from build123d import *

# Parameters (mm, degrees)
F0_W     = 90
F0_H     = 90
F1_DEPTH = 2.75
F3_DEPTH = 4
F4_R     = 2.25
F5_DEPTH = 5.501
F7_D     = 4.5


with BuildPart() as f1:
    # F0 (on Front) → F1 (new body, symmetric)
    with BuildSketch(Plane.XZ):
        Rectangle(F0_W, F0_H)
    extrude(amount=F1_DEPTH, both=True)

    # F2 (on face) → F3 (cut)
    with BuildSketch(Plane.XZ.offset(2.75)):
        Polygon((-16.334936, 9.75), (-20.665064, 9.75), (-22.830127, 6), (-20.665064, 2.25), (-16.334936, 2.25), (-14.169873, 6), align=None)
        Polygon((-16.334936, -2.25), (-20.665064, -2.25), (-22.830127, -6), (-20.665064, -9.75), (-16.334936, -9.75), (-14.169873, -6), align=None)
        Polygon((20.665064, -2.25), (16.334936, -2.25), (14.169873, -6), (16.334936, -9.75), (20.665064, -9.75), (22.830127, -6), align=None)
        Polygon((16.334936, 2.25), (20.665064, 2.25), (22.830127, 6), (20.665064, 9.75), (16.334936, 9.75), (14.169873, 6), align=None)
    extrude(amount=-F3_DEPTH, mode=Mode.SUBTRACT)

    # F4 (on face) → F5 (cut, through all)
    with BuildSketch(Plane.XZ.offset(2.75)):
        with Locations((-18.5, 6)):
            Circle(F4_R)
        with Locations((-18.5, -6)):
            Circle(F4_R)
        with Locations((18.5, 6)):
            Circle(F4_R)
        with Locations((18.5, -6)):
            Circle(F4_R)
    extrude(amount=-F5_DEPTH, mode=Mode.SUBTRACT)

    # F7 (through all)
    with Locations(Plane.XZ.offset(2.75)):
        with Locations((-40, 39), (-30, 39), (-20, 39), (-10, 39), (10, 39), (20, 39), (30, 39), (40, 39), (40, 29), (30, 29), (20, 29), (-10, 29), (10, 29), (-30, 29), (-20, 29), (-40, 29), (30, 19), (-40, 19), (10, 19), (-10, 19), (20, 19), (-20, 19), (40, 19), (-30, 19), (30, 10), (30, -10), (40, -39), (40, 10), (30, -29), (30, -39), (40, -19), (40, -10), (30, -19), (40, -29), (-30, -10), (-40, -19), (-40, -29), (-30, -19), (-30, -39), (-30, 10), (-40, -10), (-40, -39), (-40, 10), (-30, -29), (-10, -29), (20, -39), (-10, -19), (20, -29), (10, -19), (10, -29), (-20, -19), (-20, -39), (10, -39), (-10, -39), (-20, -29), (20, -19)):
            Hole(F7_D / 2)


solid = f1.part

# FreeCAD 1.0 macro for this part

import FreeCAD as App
import Part
import Sketcher
from FreeCAD import Vector
Q = App.Units.Quantity


def add_polygon(sketch, points):
    """Adds a closed chain of lines whose ends are joined by coincident constraints."""
    first, n = sketch.GeometryCount, len(points)
    for a, b in zip(points, points[1:] + points[:1]):
        sketch.addGeometry(Part.LineSegment(App.Vector(*a, 0), App.Vector(*b, 0)), False)
    for i in range(n):
        sketch.addConstraint(Sketcher.Constraint("Coincident", first + i, 2, first + (i + 1) % n, 1))

doc = App.newDocument("Part")
params = doc.addObject("Spreadsheet::Sheet", "Params")
for row, (alias, value) in enumerate([
    ("sketch1_width", "90 mm"),
    ("pad1_length", "5.5 mm"),
    ("pocket1_length", "4 mm"),
    ("sketch3_diameter", "4.5 mm"),
    ("sketch4_diameter", "4.5 mm"),
    ("hole_diameter", "4.5 mm"),
], start=1):
    params.set(f"A{row}", alias)
    params.set(f"B{row}", "=" + value)
    params.setAlias(f"B{row}", alias)

body = doc.addObject("PartDesign::Body", "Body")

sketch1 = doc.addObject("Sketcher::SketchObject", "Sketch")
body.addObject(sketch1)
sketch1.AttachmentSupport = (doc.XZ_Plane, [""])
sketch1.MapMode = "FlatFace"
add_polygon(sketch1, [(-45, 45), (-45, -45), (45, -45), (45, 45)])
sketch1.addConstraint(Sketcher.Constraint("Vertical", 0))
sketch1.addConstraint(Sketcher.Constraint("Horizontal", 1))
sketch1.addConstraint(Sketcher.Constraint("Vertical", 2))
sketch1.addConstraint(Sketcher.Constraint("Horizontal", 3))
sketch1.addConstraint(Sketcher.Constraint("Symmetric", 0, 2, 2, 2, -1, 1))
sketch1.addConstraint(Sketcher.Constraint("Equal", 3, 0))
sketch1.addConstraint(Sketcher.Constraint("DistanceX", 1, 1, 1, 2, Q("90 mm")))
sketch1.setExpression("Constraints[10]", "Params.sketch1_width")
pad1 = doc.addObject("PartDesign::Pad", "Pad")
body.addObject(pad1)
pad1.Profile = sketch1
pad1.setExpression("Length", "Params.pad1_length")
pad1.Midplane = True

sketch2 = doc.addObject("Sketcher::SketchObject", "Sketch001")
body.addObject(sketch2)
sketch2.AttachmentSupport = (doc.XZ_Plane, [""])
sketch2.MapMode = "FlatFace"
sketch2.AttachmentOffset = App.Placement(Vector(0, 0, 2.75), App.Rotation())
add_polygon(sketch2, [(-16.3, 9.8), (-20.7, 9.8), (-22.8, 6), (-20.7, 2.2), (-16.3, 2.2), (-14.2, 6)])
add_polygon(sketch2, [(-16.3, -2.2), (-20.7, -2.2), (-22.8, -6), (-20.7, -9.8), (-16.3, -9.8), (-14.2, -6)])
add_polygon(sketch2, [(20.7, -2.2), (16.3, -2.2), (14.2, -6), (16.3, -9.8), (20.7, -9.8), (22.8, -6)])
add_polygon(sketch2, [(16.3, 2.2), (20.7, 2.2), (22.8, 6), (20.7, 9.8), (16.3, 9.8), (14.2, 6)])
sketch2.addConstraint(Sketcher.Constraint("Horizontal", 0))
sketch2.addConstraint(Sketcher.Constraint("Horizontal", 3))
sketch2.addConstraint(Sketcher.Constraint("Horizontal", 6))
sketch2.addConstraint(Sketcher.Constraint("Horizontal", 9))
sketch2.addConstraint(Sketcher.Constraint("Horizontal", 12))
sketch2.addConstraint(Sketcher.Constraint("Horizontal", 15))
sketch2.addConstraint(Sketcher.Constraint("Horizontal", 18))
sketch2.addConstraint(Sketcher.Constraint("Horizontal", 21))
sketch2.addConstraint(Sketcher.Constraint("Symmetric", 3, 2, 12, 2, -1, 1))
sketch2.addConstraint(Sketcher.Constraint("Symmetric", 4, 2, 13, 2, -1, 1))
sketch2.addConstraint(Sketcher.Constraint("Symmetric", 5, 2, 14, 2, -1, 1))
sketch2.addConstraint(Sketcher.Constraint("Symmetric", 1, 2, 16, 2, -1, 1))
sketch2.addConstraint(Sketcher.Constraint("Symmetric", 6, 2, 18, 2, -1, 1))
sketch2.addConstraint(Sketcher.Constraint("Symmetric", 7, 2, 19, 2, -1, 1))
sketch2.addConstraint(Sketcher.Constraint("Symmetric", 8, 2, 20, 2, -1, 1))
sketch2.addConstraint(Sketcher.Constraint("Symmetric", 10, 2, 22, 2, -1, 1))
sketch2.addConstraint(Sketcher.Constraint("Symmetric", 11, 2, 12, 2, -2))
sketch2.addConstraint(Sketcher.Constraint("Symmetric", 10, 2, 13, 2, -2))
sketch2.addConstraint(Sketcher.Constraint("Symmetric", 9, 2, 14, 2, -2))
sketch2.addConstraint(Sketcher.Constraint("Symmetric", 7, 2, 16, 2, -2))
sketch2.addConstraint(Sketcher.Constraint("Parallel", 1, 4))
sketch2.addConstraint(Sketcher.Constraint("Parallel", 2, 5))
sketch2.addConstraint(Sketcher.Constraint("Parallel", 4, 7))
sketch2.addConstraint(Sketcher.Constraint("Parallel", 5, 8))
sketch2.addConstraint(Sketcher.Constraint("Parallel", 7, 10))
sketch2.addConstraint(Sketcher.Constraint("Parallel", 13, 16))
sketch2.addConstraint(Sketcher.Constraint("Parallel", 14, 17))
sketch2.addConstraint(Sketcher.Constraint("Parallel", 19, 22))
sketch2.addConstraint(Sketcher.Constraint("Parallel", 20, 23))
sketch2.addConstraint(Sketcher.Constraint("Horizontal", 1, 2, 4, 2))
sketch2.addConstraint(Sketcher.Constraint("Vertical", 0, 2, 2, 2))
sketch2.addConstraint(Sketcher.Constraint("Angle", 1, Q("-119.999994 deg")))
sketch2.addConstraint(Sketcher.Constraint("DistanceY", -1, 1, 1, 2, Q("6 mm")))
sketch2.addConstraint(Sketcher.Constraint("DistanceX", 9, 2, 15, 2, Q("37 mm")))
sketch2.addConstraint(Sketcher.Constraint("DistanceY", 2, 2, 0, 2, Q("7.5 mm")))
sketch2.addConstraint(Sketcher.Constraint("DistanceX", 0, 2, 0, 1, Q("4.330128 mm")))
pocket1 = doc.addObject("PartDesign::Pocket", "Pocket")
body.addObject(pocket1)
pocket1.Profile = sketch2
pocket1.setExpression("Length", "Params.pocket1_length")

sketch3 = doc.addObject("Sketcher::SketchObject", "Sketch002")
body.addObject(sketch3)
sketch3.AttachmentSupport = (doc.XZ_Plane, [""])
sketch3.MapMode = "FlatFace"
sketch3.AttachmentOffset = App.Placement(Vector(0, 0, 2.75), App.Rotation())
sketch3.addGeometry(Part.Circle(Vector(-18.5, 6, 0), Vector(0, 0, 1), 2.2), False)
sketch3.addGeometry(Part.Circle(Vector(-18.5, -6, 0), Vector(0, 0, 1), 2.2), False)
sketch3.addGeometry(Part.Circle(Vector(18.5, 6, 0), Vector(0, 0, 1), 2.2), False)
sketch3.addGeometry(Part.Circle(Vector(18.5, -6, 0), Vector(0, 0, 1), 2.2), False)
sketch3.addConstraint(Sketcher.Constraint("Equal", 0, 1))
sketch3.addConstraint(Sketcher.Constraint("Equal", 1, 2))
sketch3.addConstraint(Sketcher.Constraint("Equal", 2, 3))
sketch3.addConstraint(Sketcher.Constraint("Symmetric", 1, 3, 2, 3, -1, 1))
sketch3.addConstraint(Sketcher.Constraint("Symmetric", 0, 3, 3, 3, -1, 1))
sketch3.addConstraint(Sketcher.Constraint("Symmetric", 0, 3, 2, 3, -2))
sketch3.addConstraint(Sketcher.Constraint("Diameter", 0, Q("4.5 mm")))
sketch3.addConstraint(Sketcher.Constraint("DistanceY", -1, 1, 0, 3, Q("6 mm")))
sketch3.addConstraint(Sketcher.Constraint("DistanceX", 0, 3, 2, 3, Q("37 mm")))
sketch3.setExpression("Constraints[6]", "Params.sketch3_diameter")
pocket2 = doc.addObject("PartDesign::Pocket", "Pocket001")
body.addObject(pocket2)
pocket2.Profile = sketch3
pocket2.Type = "ThroughAll"

sketch4 = doc.addObject("Sketcher::SketchObject", "Sketch003")
body.addObject(sketch4)
sketch4.AttachmentSupport = (doc.XZ_Plane, [""])
sketch4.MapMode = "FlatFace"
sketch4.AttachmentOffset = App.Placement(Vector(0, 0, 2.75), App.Rotation())
sketch4.addGeometry(Part.Circle(Vector(-40, 39, 0), Vector(0, 0, 1), 2.2), False)
sketch4.addGeometry(Part.Circle(Vector(-30, 39, 0), Vector(0, 0, 1), 2.2), False)
sketch4.addGeometry(Part.Circle(Vector(-20, 39, 0), Vector(0, 0, 1), 2.2), False)
sketch4.addGeometry(Part.Circle(Vector(-10, 39, 0), Vector(0, 0, 1), 2.2), False)
sketch4.addGeometry(Part.Circle(Vector(10, 39, 0), Vector(0, 0, 1), 2.2), False)
sketch4.addGeometry(Part.Circle(Vector(20, 39, 0), Vector(0, 0, 1), 2.2), False)
sketch4.addGeometry(Part.Circle(Vector(30, 39, 0), Vector(0, 0, 1), 2.2), False)
sketch4.addGeometry(Part.Circle(Vector(40, 39, 0), Vector(0, 0, 1), 2.2), False)
sketch4.addGeometry(Part.Circle(Vector(40, 29, 0), Vector(0, 0, 1), 2.2), False)
sketch4.addGeometry(Part.Circle(Vector(30, 29, 0), Vector(0, 0, 1), 2.2), False)
sketch4.addGeometry(Part.Circle(Vector(20, 29, 0), Vector(0, 0, 1), 2.2), False)
sketch4.addGeometry(Part.Circle(Vector(-10, 29, 0), Vector(0, 0, 1), 2.2), False)
sketch4.addGeometry(Part.Circle(Vector(10, 29, 0), Vector(0, 0, 1), 2.2), False)
sketch4.addGeometry(Part.Circle(Vector(-30, 29, 0), Vector(0, 0, 1), 2.2), False)
sketch4.addGeometry(Part.Circle(Vector(-20, 29, 0), Vector(0, 0, 1), 2.2), False)
sketch4.addGeometry(Part.Circle(Vector(-40, 29, 0), Vector(0, 0, 1), 2.2), False)
sketch4.addGeometry(Part.Circle(Vector(30, 19, 0), Vector(0, 0, 1), 2.2), False)
sketch4.addGeometry(Part.Circle(Vector(-40, 19, 0), Vector(0, 0, 1), 2.2), False)
sketch4.addGeometry(Part.Circle(Vector(10, 19, 0), Vector(0, 0, 1), 2.2), False)
sketch4.addGeometry(Part.Circle(Vector(-10, 19, 0), Vector(0, 0, 1), 2.2), False)
sketch4.addGeometry(Part.Circle(Vector(20, 19, 0), Vector(0, 0, 1), 2.2), False)
sketch4.addGeometry(Part.Circle(Vector(-20, 19, 0), Vector(0, 0, 1), 2.2), False)
sketch4.addGeometry(Part.Circle(Vector(40, 19, 0), Vector(0, 0, 1), 2.2), False)
sketch4.addGeometry(Part.Circle(Vector(-30, 19, 0), Vector(0, 0, 1), 2.2), False)
sketch4.addGeometry(Part.Circle(Vector(30, 10, 0), Vector(0, 0, 1), 2.2), False)
sketch4.addGeometry(Part.Circle(Vector(30, -10, 0), Vector(0, 0, 1), 2.2), False)
sketch4.addGeometry(Part.Circle(Vector(40, -39, 0), Vector(0, 0, 1), 2.2), False)
sketch4.addGeometry(Part.Circle(Vector(40, 10, 0), Vector(0, 0, 1), 2.2), False)
sketch4.addGeometry(Part.Circle(Vector(30, -29, 0), Vector(0, 0, 1), 2.2), False)
sketch4.addGeometry(Part.Circle(Vector(30, -39, 0), Vector(0, 0, 1), 2.2), False)
sketch4.addGeometry(Part.Circle(Vector(40, -19, 0), Vector(0, 0, 1), 2.2), False)
sketch4.addGeometry(Part.Circle(Vector(40, -10, 0), Vector(0, 0, 1), 2.2), False)
sketch4.addGeometry(Part.Circle(Vector(30, -19, 0), Vector(0, 0, 1), 2.2), False)
sketch4.addGeometry(Part.Circle(Vector(40, -29, 0), Vector(0, 0, 1), 2.2), False)
sketch4.addGeometry(Part.Circle(Vector(-30, -10, 0), Vector(0, 0, 1), 2.2), False)
sketch4.addGeometry(Part.Circle(Vector(-40, -19, 0), Vector(0, 0, 1), 2.2), False)
sketch4.addGeometry(Part.Circle(Vector(-40, -29, 0), Vector(0, 0, 1), 2.2), False)
sketch4.addGeometry(Part.Circle(Vector(-30, -19, 0), Vector(0, 0, 1), 2.2), False)
sketch4.addGeometry(Part.Circle(Vector(-30, -39, 0), Vector(0, 0, 1), 2.2), False)
sketch4.addGeometry(Part.Circle(Vector(-30, 10, 0), Vector(0, 0, 1), 2.2), False)
sketch4.addGeometry(Part.Circle(Vector(-40, -10, 0), Vector(0, 0, 1), 2.2), False)
sketch4.addGeometry(Part.Circle(Vector(-40, -39, 0), Vector(0, 0, 1), 2.2), False)
sketch4.addGeometry(Part.Circle(Vector(-40, 10, 0), Vector(0, 0, 1), 2.2), False)
sketch4.addGeometry(Part.Circle(Vector(-30, -29, 0), Vector(0, 0, 1), 2.2), False)
sketch4.addGeometry(Part.Circle(Vector(-10, -29, 0), Vector(0, 0, 1), 2.2), False)
sketch4.addGeometry(Part.Circle(Vector(20, -39, 0), Vector(0, 0, 1), 2.2), False)
sketch4.addGeometry(Part.Circle(Vector(-10, -19, 0), Vector(0, 0, 1), 2.2), False)
sketch4.addGeometry(Part.Circle(Vector(20, -29, 0), Vector(0, 0, 1), 2.2), False)
sketch4.addGeometry(Part.Circle(Vector(10, -19, 0), Vector(0, 0, 1), 2.2), False)
sketch4.addGeometry(Part.Circle(Vector(10, -29, 0), Vector(0, 0, 1), 2.2), False)
sketch4.addGeometry(Part.Circle(Vector(-20, -19, 0), Vector(0, 0, 1), 2.2), False)
sketch4.addGeometry(Part.Circle(Vector(-20, -39, 0), Vector(0, 0, 1), 2.2), False)
sketch4.addGeometry(Part.Circle(Vector(10, -39, 0), Vector(0, 0, 1), 2.2), False)
sketch4.addGeometry(Part.Circle(Vector(-10, -39, 0), Vector(0, 0, 1), 2.2), False)
sketch4.addGeometry(Part.Circle(Vector(-20, -29, 0), Vector(0, 0, 1), 2.2), False)
sketch4.addGeometry(Part.Circle(Vector(20, -19, 0), Vector(0, 0, 1), 2.2), False)
sketch4.addConstraint(Sketcher.Constraint("Equal", 0, 1))
sketch4.addConstraint(Sketcher.Constraint("Equal", 1, 2))
sketch4.addConstraint(Sketcher.Constraint("Equal", 2, 3))
sketch4.addConstraint(Sketcher.Constraint("Equal", 3, 4))
sketch4.addConstraint(Sketcher.Constraint("Equal", 4, 5))
sketch4.addConstraint(Sketcher.Constraint("Equal", 5, 6))
sketch4.addConstraint(Sketcher.Constraint("Equal", 6, 7))
sketch4.addConstraint(Sketcher.Constraint("Equal", 7, 8))
sketch4.addConstraint(Sketcher.Constraint("Equal", 8, 9))
sketch4.addConstraint(Sketcher.Constraint("Equal", 9, 10))
sketch4.addConstraint(Sketcher.Constraint("Equal", 10, 11))
sketch4.addConstraint(Sketcher.Constraint("Equal", 11, 12))
sketch4.addConstraint(Sketcher.Constraint("Equal", 12, 13))
sketch4.addConstraint(Sketcher.Constraint("Equal", 13, 14))
sketch4.addConstraint(Sketcher.Constraint("Equal", 14, 15))
sketch4.addConstraint(Sketcher.Constraint("Equal", 15, 16))
sketch4.addConstraint(Sketcher.Constraint("Equal", 16, 17))
sketch4.addConstraint(Sketcher.Constraint("Equal", 17, 18))
sketch4.addConstraint(Sketcher.Constraint("Equal", 18, 19))
sketch4.addConstraint(Sketcher.Constraint("Equal", 19, 20))
sketch4.addConstraint(Sketcher.Constraint("Equal", 20, 21))
sketch4.addConstraint(Sketcher.Constraint("Equal", 21, 22))
sketch4.addConstraint(Sketcher.Constraint("Equal", 22, 23))
sketch4.addConstraint(Sketcher.Constraint("Equal", 23, 24))
sketch4.addConstraint(Sketcher.Constraint("Equal", 24, 25))
sketch4.addConstraint(Sketcher.Constraint("Equal", 25, 26))
sketch4.addConstraint(Sketcher.Constraint("Equal", 26, 27))
sketch4.addConstraint(Sketcher.Constraint("Equal", 27, 28))
sketch4.addConstraint(Sketcher.Constraint("Equal", 28, 29))
sketch4.addConstraint(Sketcher.Constraint("Equal", 29, 30))
sketch4.addConstraint(Sketcher.Constraint("Equal", 30, 31))
sketch4.addConstraint(Sketcher.Constraint("Equal", 31, 32))
sketch4.addConstraint(Sketcher.Constraint("Equal", 32, 33))
sketch4.addConstraint(Sketcher.Constraint("Equal", 33, 34))
sketch4.addConstraint(Sketcher.Constraint("Equal", 34, 35))
sketch4.addConstraint(Sketcher.Constraint("Equal", 35, 36))
sketch4.addConstraint(Sketcher.Constraint("Equal", 36, 37))
sketch4.addConstraint(Sketcher.Constraint("Equal", 37, 38))
sketch4.addConstraint(Sketcher.Constraint("Equal", 38, 39))
sketch4.addConstraint(Sketcher.Constraint("Equal", 39, 40))
sketch4.addConstraint(Sketcher.Constraint("Equal", 40, 41))
sketch4.addConstraint(Sketcher.Constraint("Equal", 41, 42))
sketch4.addConstraint(Sketcher.Constraint("Equal", 42, 43))
sketch4.addConstraint(Sketcher.Constraint("Equal", 43, 44))
sketch4.addConstraint(Sketcher.Constraint("Equal", 44, 45))
sketch4.addConstraint(Sketcher.Constraint("Equal", 45, 46))
sketch4.addConstraint(Sketcher.Constraint("Equal", 46, 47))
sketch4.addConstraint(Sketcher.Constraint("Equal", 47, 48))
sketch4.addConstraint(Sketcher.Constraint("Equal", 48, 49))
sketch4.addConstraint(Sketcher.Constraint("Equal", 49, 50))
sketch4.addConstraint(Sketcher.Constraint("Equal", 50, 51))
sketch4.addConstraint(Sketcher.Constraint("Equal", 51, 52))
sketch4.addConstraint(Sketcher.Constraint("Equal", 52, 53))
sketch4.addConstraint(Sketcher.Constraint("Equal", 53, 54))
sketch4.addConstraint(Sketcher.Constraint("Equal", 54, 55))
sketch4.addConstraint(Sketcher.Constraint("Symmetric", 0, 3, 26, 3, -1, 1))
sketch4.addConstraint(Sketcher.Constraint("Symmetric", 13, 3, 28, 3, -1, 1))
sketch4.addConstraint(Sketcher.Constraint("Symmetric", 1, 3, 29, 3, -1, 1))
sketch4.addConstraint(Sketcher.Constraint("Symmetric", 17, 3, 30, 3, -1, 1))
sketch4.addConstraint(Sketcher.Constraint("Symmetric", 23, 3, 32, 3, -1, 1))
sketch4.addConstraint(Sketcher.Constraint("Symmetric", 15, 3, 33, 3, -1, 1))
sketch4.addConstraint(Sketcher.Constraint("Symmetric", 24, 3, 34, 3, -1, 1))
sketch4.addConstraint(Sketcher.Constraint("Symmetric", 22, 3, 35, 3, -1, 1))
sketch4.addConstraint(Sketcher.Constraint("Symmetric", 8, 3, 36, 3, -1, 1))
sketch4.addConstraint(Sketcher.Constraint("Symmetric", 16, 3, 37, 3, -1, 1))
sketch4.addConstraint(Sketcher.Constraint("Symmetric", 6, 3, 38, 3, -1, 1))
sketch4.addConstraint(Sketcher.Constraint("Symmetric", 25, 3, 39, 3, -1, 1))
sketch4.addConstraint(Sketcher.Constraint("Symmetric", 27, 3, 40, 3, -1, 1))
sketch4.addConstraint(Sketcher.Constraint("Symmetric", 7, 3, 41, 3, -1, 1))
sketch4.addConstraint(Sketcher.Constraint("Symmetric", 31, 3, 42, 3, -1, 1))
sketch4.addConstraint(Sketcher.Constraint("Symmetric", 9, 3, 43, 3, -1, 1))
sketch4.addConstraint(Sketcher.Constraint("Symmetric", 12, 3, 44, 3, -1, 1))
sketch4.addConstraint(Sketcher.Constraint("Symmetric", 2, 3, 45, 3, -1, 1))
sketch4.addConstraint(Sketcher.Constraint("Symmetric", 18, 3, 46, 3, -1, 1))
sketch4.addConstraint(Sketcher.Constraint("Symmetric", 14, 3, 47, 3, -1, 1))
sketch4.addConstraint(Sketcher.Constraint("Symmetric", 19, 3, 48, 3, -1, 1))
sketch4.addConstraint(Sketcher.Constraint("Symmetric", 11, 3, 49, 3, -1, 1))
sketch4.addConstraint(Sketcher.Constraint("Symmetric", 20, 3, 50, 3, -1, 1))
sketch4.addConstraint(Sketcher.Constraint("Symmetric", 5, 3, 51, 3, -1, 1))
sketch4.addConstraint(Sketcher.Constraint("Symmetric", 3, 3, 52, 3, -1, 1))
sketch4.addConstraint(Sketcher.Constraint("Symmetric", 4, 3, 53, 3, -1, 1))
sketch4.addConstraint(Sketcher.Constraint("Symmetric", 10, 3, 54, 3, -1, 1))
sketch4.addConstraint(Sketcher.Constraint("Symmetric", 21, 3, 55, 3, -1, 1))
sketch4.addConstraint(Sketcher.Constraint("Symmetric", 3, 3, 4, 3, -2))
sketch4.addConstraint(Sketcher.Constraint("Symmetric", 2, 3, 5, 3, -2))
sketch4.addConstraint(Sketcher.Constraint("Symmetric", 1, 3, 6, 3, -2))
sketch4.addConstraint(Sketcher.Constraint("Symmetric", 0, 3, 7, 3, -2))
sketch4.addConstraint(Sketcher.Constraint("Symmetric", 11, 3, 12, 3, -2))
sketch4.addConstraint(Sketcher.Constraint("Symmetric", 9, 3, 13, 3, -2))
sketch4.addConstraint(Sketcher.Constraint("Symmetric", 10, 3, 14, 3, -2))
sketch4.addConstraint(Sketcher.Constraint("Symmetric", 8, 3, 15, 3, -2))
sketch4.addConstraint(Sketcher.Constraint("Symmetric", 18, 3, 19, 3, -2))
sketch4.addConstraint(Sketcher.Constraint("Symmetric", 20, 3, 21, 3, -2))
sketch4.addConstraint(Sketcher.Constraint("Symmetric", 17, 3, 22, 3, -2))
sketch4.addConstraint(Sketcher.Constraint("Symmetric", 16, 3, 23, 3, -2))
sketch4.addConstraint(Sketcher.Constraint("Symmetric", 25, 3, 34, 3, -2))
sketch4.addConstraint(Sketcher.Constraint("Symmetric", 31, 3, 40, 3, -2))
sketch4.addConstraint(Sketcher.Constraint("Horizontal", 0, 3, 1, 3))
sketch4.addConstraint(Sketcher.Constraint("Horizontal", 1, 3, 2, 3))
sketch4.addConstraint(Sketcher.Constraint("Horizontal", 2, 3, 3, 3))
sketch4.addConstraint(Sketcher.Constraint("Horizontal", 8, 3, 9, 3))
sketch4.addConstraint(Sketcher.Constraint("Horizontal", 9, 3, 10, 3))
sketch4.addConstraint(Sketcher.Constraint("Horizontal", 10, 3, 11, 3))
sketch4.addConstraint(Sketcher.Constraint("Horizontal", 16, 3, 17, 3))
sketch4.addConstraint(Sketcher.Constraint("Horizontal", 17, 3, 18, 3))
sketch4.addConstraint(Sketcher.Constraint("Horizontal", 19, 3, 20, 3))
sketch4.addConstraint(Sketcher.Constraint("Horizontal", 24, 3, 27, 3))
sketch4.addConstraint(Sketcher.Constraint("Vertical", 7, 3, 8, 3))
sketch4.addConstraint(Sketcher.Constraint("Vertical", 6, 3, 9, 3))
sketch4.addConstraint(Sketcher.Constraint("Vertical", 5, 3, 10, 3))
sketch4.addConstraint(Sketcher.Constraint("Vertical", 3, 3, 11, 3))
sketch4.addConstraint(Sketcher.Constraint("Vertical", 9, 3, 16, 3))
sketch4.addConstraint(Sketcher.Constraint("Vertical", 15, 3, 17, 3))
sketch4.addConstraint(Sketcher.Constraint("Vertical", 12, 3, 18, 3))
sketch4.addConstraint(Sketcher.Constraint("Vertical", 10, 3, 20, 3))
sketch4.addConstraint(Sketcher.Constraint("Vertical", 16, 3, 24, 3))
sketch4.addConstraint(Sketcher.Constraint("Vertical", 26, 3, 27, 3))
sketch4.addConstraint(Sketcher.Constraint("Diameter", 0, Q("4.5 mm")))
sketch4.addConstraint(Sketcher.Constraint("DistanceX", 0, 3, -1, 1, Q("40 mm")))
sketch4.addConstraint(Sketcher.Constraint("DistanceY", -1, 1, 0, 3, Q("39 mm")))
sketch4.addConstraint(Sketcher.Constraint("DistanceX", 1, 3, -1, 1, Q("30 mm")))
sketch4.addConstraint(Sketcher.Constraint("DistanceX", 2, 3, -1, 1, Q("20 mm")))
sketch4.addConstraint(Sketcher.Constraint("DistanceX", 3, 3, -1, 1, Q("10 mm")))
sketch4.addConstraint(Sketcher.Constraint("DistanceY", -1, 1, 8, 3, Q("29 mm")))
sketch4.addConstraint(Sketcher.Constraint("DistanceY", -1, 1, 16, 3, Q("19 mm")))
sketch4.addConstraint(Sketcher.Constraint("DistanceY", -1, 1, 24, 3, Q("10 mm")))
sketch4.setExpression("Constraints[117]", "Params.sketch4_diameter")
doc.recompute()
hole = doc.addObject("PartDesign::Hole", "Hole")
body.addObject(hole)
hole.Profile = sketch4
hole.ThreadType = "None"
hole.setExpression("Diameter", "Params.hole_diameter")
hole.DepthType = "ThroughAll"

doc.recompute()
